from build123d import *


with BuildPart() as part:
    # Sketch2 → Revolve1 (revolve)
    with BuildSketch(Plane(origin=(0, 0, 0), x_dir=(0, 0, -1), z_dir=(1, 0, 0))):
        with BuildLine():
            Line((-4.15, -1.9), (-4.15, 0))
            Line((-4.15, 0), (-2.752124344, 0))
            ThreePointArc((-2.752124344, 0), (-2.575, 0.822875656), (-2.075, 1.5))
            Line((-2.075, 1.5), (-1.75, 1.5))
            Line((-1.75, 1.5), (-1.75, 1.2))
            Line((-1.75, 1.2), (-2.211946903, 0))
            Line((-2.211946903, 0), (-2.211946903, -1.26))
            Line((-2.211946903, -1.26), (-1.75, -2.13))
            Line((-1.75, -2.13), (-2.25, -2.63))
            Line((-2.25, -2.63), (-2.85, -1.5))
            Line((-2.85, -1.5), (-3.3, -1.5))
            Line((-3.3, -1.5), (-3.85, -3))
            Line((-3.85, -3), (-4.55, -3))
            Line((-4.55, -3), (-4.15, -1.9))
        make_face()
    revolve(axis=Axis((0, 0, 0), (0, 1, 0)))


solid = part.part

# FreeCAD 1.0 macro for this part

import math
import FreeCAD as App
import Part
import Sketcher

V = App.Vector
Q = App.Units.Quantity

doc = App.newDocument("Part")
body = doc.addObject("PartDesign::Body", "Body")

# Sketch on YZ plane
sketch1 = body.newObject("Sketcher::SketchObject", "Sketch")
sketch1.AttachmentSupport = (doc.getObject("YZ_Plane"), [""])
sketch1.MapMode = "FlatFace"
sketch1.addGeometry([
    Part.LineSegment(V(0, 4.15, 0), V(-1.9, 4.15, 0)),  # 0
    Part.LineSegment(V(-1.9, 4.15, 0), V(-3, 4.55, 0)),  # 1
    Part.LineSegment(V(-3, 4.55, 0), V(-3, 3.85, 0)),  # 2
    Part.LineSegment(V(-3, 3.85, 0), V(-1.5, 3.3, 0)),  # 3
    Part.LineSegment(V(-1.5, 3.3, 0), V(-1.5, 2.85, 0)),  # 4
    Part.LineSegment(V(-1.5, 2.85, 0), V(-2.63, 2.25, 0)),  # 5
    Part.LineSegment(V(-2.63, 2.25, 0), V(-2.13, 1.75, 0)),  # 6
    Part.LineSegment(V(-2.13, 1.75, 0), V(-1.26, 2.21, 0)),  # 7
    Part.LineSegment(V(-1.26, 2.21, 0), V(0, 2.21, 0)),  # 8
    Part.LineSegment(V(0, 2.21, 0), V(1.2, 1.75, 0)),  # 9
    Part.LineSegment(V(1.2, 1.75, 0), V(1.5, 1.75, 0)),  # 10
    Part.LineSegment(V(1.5, 1.75, 0), V(1.5, 2.08, 0)),  # 11
    Part.ArcOfCircle(Part.Circle(V(0, 0.75, 0), V(0, 0, 1), 2), math.radians(41), math.radians(90)),  # 12
    Part.LineSegment(V(0, 2.75, 0), V(0, 4.15, 0)),  # 13
], False)
sketch1.addConstraint([
    Sketcher.Constraint("Coincident", 0, 2, 1, 1),
    Sketcher.Constraint("Coincident", 1, 2, 2, 1),
    Sketcher.Constraint("Coincident", 2, 2, 3, 1),
    Sketcher.Constraint("Coincident", 3, 2, 4, 1),
    Sketcher.Constraint("Coincident", 4, 2, 5, 1),
    Sketcher.Constraint("Coincident", 5, 2, 6, 1),
    Sketcher.Constraint("Coincident", 6, 2, 7, 1),
    Sketcher.Constraint("Coincident", 7, 2, 8, 1),
    Sketcher.Constraint("Coincident", 8, 2, 9, 1),
    Sketcher.Constraint("Coincident", 9, 2, 10, 1),
    Sketcher.Constraint("Coincident", 10, 2, 11, 1),
    Sketcher.Constraint("Coincident", 11, 2, 12, 1),
    Sketcher.Constraint("Coincident", 12, 2, 13, 1),
    Sketcher.Constraint("Coincident", 13, 2, 0, 1),
    Sketcher.Constraint("Horizontal", 0),
    Sketcher.Constraint("Vertical", 2),
    Sketcher.Constraint("Vertical", 4),
    Sketcher.Constraint("Horizontal", 8),
    Sketcher.Constraint("Horizontal", 10),
    Sketcher.Constraint("Vertical", 11),
    Sketcher.Constraint("Vertical", 13),
    Sketcher.Constraint("PointOnObject", 12, 3, -2),
    Sketcher.Constraint("PointOnObject", 8, 2, -2),
    Sketcher.Constraint("PointOnObject", 12, 2, -2),
    Sketcher.Constraint("Parallel", 5, 7),
    Sketcher.Constraint("Horizontal", 6, 2, 9, 2),
    Sketcher.Constraint("Radius", 12, 2.0),
    Sketcher.Constraint("Angle", 6, Q("-45 deg")),
    Sketcher.Constraint("DistanceX", 0, 2, 0, 1, 1.9),
    Sketcher.Constraint("DistanceX", 10, 1, 10, 2, 0.3),
    Sketcher.Constraint("DistanceY", 2, 2, 2, 1, 0.7),
    Sketcher.Constraint("DistanceX", 1, 2, -1, 1, 3.0),
    Sketcher.Constraint("DistanceY", 4, 2, 2, 2, 1.0),
    Sketcher.Constraint("DistanceX", 4, 2, 10, 2, 3.0),
    Sketcher.Constraint("DistanceX", 8, 1, 8, 2, 1.26),
    Sketcher.Constraint("DistanceY", 4, 2, 4, 1, 0.45),
    Sketcher.Constraint("DistanceX", 3, 2, -1, 1, 1.5),
    Sketcher.Constraint("DistanceY", -1, 1, 3, 2, 3.3),
    Sketcher.Constraint("DistanceY", 0, 2, 1, 2, 0.4),
    Sketcher.Constraint("DistanceY", 5, 2, 4, 2, 0.6),
    Sketcher.Constraint("DistanceX", 5, 2, 6, 2, 0.5),
    Sketcher.Constraint("DistanceY", 11, 1, 11, 2, 0.325),
    Sketcher.Constraint("DistanceX", 5, 2, -1, 1, 2.63),
])
revolution = body.newObject("PartDesign::Revolution", "Revolution")
revolution.Profile = sketch1
revolution.ReferenceAxis = (sketch1, ["H_Axis"])
revolution.Angle = 360

doc.recompute()
